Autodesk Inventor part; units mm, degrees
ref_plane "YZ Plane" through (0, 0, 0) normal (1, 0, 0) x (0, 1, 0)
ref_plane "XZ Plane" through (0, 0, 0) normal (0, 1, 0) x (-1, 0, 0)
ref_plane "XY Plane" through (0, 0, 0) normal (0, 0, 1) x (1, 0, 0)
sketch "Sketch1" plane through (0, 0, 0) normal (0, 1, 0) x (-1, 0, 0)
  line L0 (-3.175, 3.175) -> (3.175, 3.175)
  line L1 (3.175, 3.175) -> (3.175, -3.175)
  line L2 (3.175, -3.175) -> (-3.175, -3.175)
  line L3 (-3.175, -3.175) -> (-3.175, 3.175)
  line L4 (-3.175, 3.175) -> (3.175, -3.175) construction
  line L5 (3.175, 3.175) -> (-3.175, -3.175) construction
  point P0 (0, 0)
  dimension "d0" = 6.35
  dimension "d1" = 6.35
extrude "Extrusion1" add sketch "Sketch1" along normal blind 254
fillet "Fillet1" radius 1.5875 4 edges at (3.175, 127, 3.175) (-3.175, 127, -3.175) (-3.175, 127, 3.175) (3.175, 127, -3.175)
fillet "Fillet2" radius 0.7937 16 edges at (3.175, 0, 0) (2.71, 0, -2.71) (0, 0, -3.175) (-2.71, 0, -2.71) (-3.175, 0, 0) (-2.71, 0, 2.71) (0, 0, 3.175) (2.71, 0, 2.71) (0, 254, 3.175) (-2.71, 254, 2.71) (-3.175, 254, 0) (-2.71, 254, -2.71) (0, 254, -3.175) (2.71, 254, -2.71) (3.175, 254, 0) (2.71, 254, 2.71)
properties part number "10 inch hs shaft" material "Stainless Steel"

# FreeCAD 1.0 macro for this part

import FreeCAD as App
import Part
import Sketcher
from FreeCAD import Vector
Q = App.Units.Quantity


def edges_at(feature, points):
    """Names of the edges that pass closest to the given points."""
    edges = feature.Shape.Edges
    near = lambda p: min(range(len(edges)), key=lambda i: edges[i].distToShape(Part.Vertex(*p))[0])
    return sorted({f"Edge{near(p) + 1}" for p in points})


def add_polygon(sketch, points):
    """Adds a closed chain of lines whose ends are joined by coincident constraints."""
    first, n = sketch.GeometryCount, len(points)
    for a, b in zip(points, points[1:] + points[:1]):
        sketch.addGeometry(Part.LineSegment(App.Vector(*a, 0), App.Vector(*b, 0)), False)
    for i in range(n):
        sketch.addConstraint(Sketcher.Constraint("Coincident", first + i, 2, first + (i + 1) % n, 1))

doc = App.newDocument("Part")
body = doc.addObject("PartDesign::Body", "Body")

# Sketch on XZ plane
sketch1 = doc.addObject("Sketcher::SketchObject", "Sketch")
body.addObject(sketch1)
sketch1.AttachmentSupport = (doc.XZ_Plane, [""])
sketch1.MapMode = "FlatFace"
add_polygon(sketch1, [(-3, 3), (3, 3), (3, -3), (-3, -3)])  # lines 0-3
sketch1.addConstraint([
    Sketcher.Constraint("Horizontal", 0),
    Sketcher.Constraint("Vertical", 1),
    Sketcher.Constraint("Horizontal", 2),
    Sketcher.Constraint("Vertical", 3),
    Sketcher.Constraint("Symmetric", 0, 2, 2, 2, -1, 1),
    Sketcher.Constraint("Equal", 2, 1),
    Sketcher.Constraint("DistanceX", 0, 1, 0, 2, Q("0.25 in")),
])
pad1 = doc.addObject("PartDesign::Pad", "Pad")
body.addObject(pad1)
pad1.Profile = sketch1
pad1.Length = Q("10 in")
pad1.Reversed = True
doc.recompute()

fillet = doc.addObject("PartDesign::Fillet", "Fillet")
body.addObject(fillet)
fillet.Base = (pad1, edges_at(pad1, [
    (3.175, 127, 3.175),
    (-3.175, 127, -3.175),
    (-3.175, 127, 3.175),
    (3.175, 127, -3.175),
]))
fillet.Radius = Q("0.0625 in")
doc.recompute()

fillet2 = doc.addObject("PartDesign::Fillet", "Fillet001")
body.addObject(fillet2)
fillet2.Base = (fillet, edges_at(fillet, [
    (3.175, 0, 0),
    (2.71, 0, -2.71),
    (0, 0, -3.175),
    (-2.71, 0, -2.71),
    (-3.175, 0, 0),
    (-2.71, 0, 2.71),
    (0, 0, 3.175),
    (2.71, 0, 2.71),
    (0, 254, 3.175),
    (-2.71, 254, 2.71),
    (-3.175, 254, 0),
    (-2.71, 254, -2.71),
    (0, 254, -3.175),
    (2.71, 254, -2.71),
    (3.175, 254, 0),
    (2.71, 254, 2.71),
]))
fillet2.Radius = Q("0.031248 in")

doc.recompute()
